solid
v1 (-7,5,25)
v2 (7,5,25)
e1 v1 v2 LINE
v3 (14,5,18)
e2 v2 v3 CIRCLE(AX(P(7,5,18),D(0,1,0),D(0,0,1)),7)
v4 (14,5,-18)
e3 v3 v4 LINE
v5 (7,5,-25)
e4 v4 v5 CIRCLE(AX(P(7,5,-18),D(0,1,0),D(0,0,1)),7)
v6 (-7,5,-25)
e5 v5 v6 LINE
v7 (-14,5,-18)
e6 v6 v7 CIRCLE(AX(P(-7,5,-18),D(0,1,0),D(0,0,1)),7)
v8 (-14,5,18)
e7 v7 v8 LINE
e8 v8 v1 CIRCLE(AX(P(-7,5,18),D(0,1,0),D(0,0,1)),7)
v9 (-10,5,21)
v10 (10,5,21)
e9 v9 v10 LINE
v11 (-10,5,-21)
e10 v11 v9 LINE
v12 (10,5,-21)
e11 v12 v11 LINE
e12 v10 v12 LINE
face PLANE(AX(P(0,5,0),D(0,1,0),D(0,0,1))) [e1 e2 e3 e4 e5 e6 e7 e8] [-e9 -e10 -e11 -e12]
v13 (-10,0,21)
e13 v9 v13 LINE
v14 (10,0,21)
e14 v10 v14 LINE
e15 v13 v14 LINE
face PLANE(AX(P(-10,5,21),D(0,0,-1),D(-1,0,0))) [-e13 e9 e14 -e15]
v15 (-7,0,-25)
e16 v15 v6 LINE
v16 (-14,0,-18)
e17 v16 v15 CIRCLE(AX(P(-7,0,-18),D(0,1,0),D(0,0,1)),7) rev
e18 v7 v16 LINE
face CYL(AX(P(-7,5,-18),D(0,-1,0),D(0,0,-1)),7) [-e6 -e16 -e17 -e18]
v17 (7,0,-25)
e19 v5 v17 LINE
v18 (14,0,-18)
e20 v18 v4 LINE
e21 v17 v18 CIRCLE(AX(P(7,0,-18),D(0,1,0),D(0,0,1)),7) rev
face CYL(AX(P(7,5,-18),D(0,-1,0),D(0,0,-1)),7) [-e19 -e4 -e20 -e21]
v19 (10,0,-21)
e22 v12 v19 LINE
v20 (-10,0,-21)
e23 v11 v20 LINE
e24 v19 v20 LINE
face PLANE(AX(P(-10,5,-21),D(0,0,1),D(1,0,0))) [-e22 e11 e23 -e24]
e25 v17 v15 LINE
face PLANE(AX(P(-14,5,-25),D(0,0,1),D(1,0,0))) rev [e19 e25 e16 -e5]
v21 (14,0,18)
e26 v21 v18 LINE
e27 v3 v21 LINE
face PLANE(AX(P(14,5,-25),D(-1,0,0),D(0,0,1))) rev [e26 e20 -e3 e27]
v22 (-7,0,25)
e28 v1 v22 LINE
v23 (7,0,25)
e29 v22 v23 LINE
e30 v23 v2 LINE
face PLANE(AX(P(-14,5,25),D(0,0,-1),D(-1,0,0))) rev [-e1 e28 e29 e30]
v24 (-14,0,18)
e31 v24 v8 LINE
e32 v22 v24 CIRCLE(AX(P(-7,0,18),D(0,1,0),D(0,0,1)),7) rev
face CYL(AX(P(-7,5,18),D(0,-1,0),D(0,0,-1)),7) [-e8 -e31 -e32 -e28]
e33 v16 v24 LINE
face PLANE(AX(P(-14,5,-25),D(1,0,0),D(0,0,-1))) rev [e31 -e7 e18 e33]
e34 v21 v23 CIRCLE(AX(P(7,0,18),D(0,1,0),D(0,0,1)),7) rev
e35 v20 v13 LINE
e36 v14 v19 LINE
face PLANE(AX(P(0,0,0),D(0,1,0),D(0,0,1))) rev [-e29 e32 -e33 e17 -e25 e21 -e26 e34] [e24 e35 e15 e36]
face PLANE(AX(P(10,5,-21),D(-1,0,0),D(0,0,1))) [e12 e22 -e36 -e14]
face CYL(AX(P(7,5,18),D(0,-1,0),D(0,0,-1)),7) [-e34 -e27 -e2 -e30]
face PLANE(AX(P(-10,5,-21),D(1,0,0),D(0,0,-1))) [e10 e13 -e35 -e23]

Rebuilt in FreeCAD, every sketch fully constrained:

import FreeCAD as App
import Part
import Sketcher
from FreeCAD import Vector


def edges_at(feature, points):
    """Names of the edges that pass closest to the given points."""
    edges = feature.Shape.Edges
    near = lambda p: min(range(len(edges)), key=lambda i: edges[i].distToShape(Part.Vertex(*p))[0])
    return sorted({f"Edge{near(p) + 1}" for p in points})

doc = App.newDocument("Part")
body = doc.addObject("PartDesign::Body", "Body")

sketch1 = doc.addObject("Sketcher::SketchObject", "Sketch")
body.addObject(sketch1)
sketch1.AttachmentSupport = (doc.XZ_Plane, [""])
sketch1.MapMode = "FlatFace"
sketch1.addGeometry(Part.LineSegment(Vector(-14, -25, 0), Vector(-14, 25, 0)), False)
sketch1.addGeometry(Part.LineSegment(Vector(-14, 25, 0), Vector(14, 25, 0)), False)
sketch1.addGeometry(Part.LineSegment(Vector(14, 25, 0), Vector(14, -25, 0)), False)
sketch1.addGeometry(Part.LineSegment(Vector(14, -25, 0), Vector(-14, -25, 0)), False)
sketch1.addGeometry(Part.LineSegment(Vector(10, 21, 0), Vector(-10, 21, 0)), False)
sketch1.addGeometry(Part.LineSegment(Vector(-10, 21, 0), Vector(-10, -21, 0)), False)
sketch1.addGeometry(Part.LineSegment(Vector(-10, -21, 0), Vector(10, -21, 0)), False)
sketch1.addGeometry(Part.LineSegment(Vector(10, -21, 0), Vector(10, 21, 0)), False)
sketch1.addConstraint(Sketcher.Constraint("Coincident", 0, 2, 1, 1))
sketch1.addConstraint(Sketcher.Constraint("Coincident", 1, 2, 2, 1))
sketch1.addConstraint(Sketcher.Constraint("Coincident", 2, 2, 3, 1))
sketch1.addConstraint(Sketcher.Constraint("Coincident", 3, 2, 0, 1))
sketch1.addConstraint(Sketcher.Constraint("Coincident", 4, 2, 5, 1))
sketch1.addConstraint(Sketcher.Constraint("Coincident", 5, 2, 6, 1))
sketch1.addConstraint(Sketcher.Constraint("Coincident", 6, 2, 7, 1))
sketch1.addConstraint(Sketcher.Constraint("Coincident", 7, 2, 4, 1))
sketch1.addConstraint(Sketcher.Constraint("Vertical", 0))
sketch1.addConstraint(Sketcher.Constraint("Horizontal", 1))
sketch1.addConstraint(Sketcher.Constraint("Vertical", 2))
sketch1.addConstraint(Sketcher.Constraint("Horizontal", 3))
sketch1.addConstraint(Sketcher.Constraint("Horizontal", 4))
sketch1.addConstraint(Sketcher.Constraint("Vertical", 5))
sketch1.addConstraint(Sketcher.Constraint("Horizontal", 6))
sketch1.addConstraint(Sketcher.Constraint("Vertical", 7))
sketch1.addConstraint(Sketcher.Constraint("Symmetric", 0, 2, 2, 2, -1, 1))
sketch1.addConstraint(Sketcher.Constraint("Symmetric", 4, 2, 6, 2, -1, 1))
sketch1.addConstraint(Sketcher.Constraint("DistanceX", 1, 1, 1, 2, 28.0))
sketch1.addConstraint(Sketcher.Constraint("DistanceX", 4, 2, 4, 1, 20.0))
sketch1.addConstraint(Sketcher.Constraint("DistanceY", 0, 1, 0, 2, 50.0))
sketch1.addConstraint(Sketcher.Constraint("DistanceY", 5, 2, 5, 1, 42.0))
pad1 = doc.addObject("PartDesign::Pad", "Pad")
body.addObject(pad1)
pad1.Profile = sketch1
pad1.Length = 5
pad1.Reversed = True
doc.recompute()

fillet = doc.addObject("PartDesign::Fillet", "Fillet")
body.addObject(fillet)
fillet.Base = (pad1, edges_at(pad1, [
    (14, 2.5, 25),
    (-14, 2.5, 25),
    (-14, 2.5, -25),
    (14, 2.5, -25),
]))
fillet.Radius = 7

doc.recompute()
